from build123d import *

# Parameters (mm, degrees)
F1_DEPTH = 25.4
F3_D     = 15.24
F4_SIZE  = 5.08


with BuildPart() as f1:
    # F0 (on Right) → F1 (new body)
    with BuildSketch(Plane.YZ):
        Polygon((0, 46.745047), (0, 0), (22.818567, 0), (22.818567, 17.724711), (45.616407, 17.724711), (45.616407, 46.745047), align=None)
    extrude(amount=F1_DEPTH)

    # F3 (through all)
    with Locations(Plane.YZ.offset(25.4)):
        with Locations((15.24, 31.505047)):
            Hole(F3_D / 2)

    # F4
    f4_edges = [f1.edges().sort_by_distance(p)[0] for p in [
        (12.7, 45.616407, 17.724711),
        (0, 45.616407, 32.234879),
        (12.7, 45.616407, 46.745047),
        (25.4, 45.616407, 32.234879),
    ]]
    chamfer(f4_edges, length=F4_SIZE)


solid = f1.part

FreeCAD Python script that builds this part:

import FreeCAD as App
import Part
import Sketcher
Q = App.Units.Quantity


def edges_at(feature, points):
    """Names of the edges that pass closest to the given points."""
    edges = feature.Shape.Edges
    near = lambda p: min(range(len(edges)), key=lambda i: edges[i].distToShape(Part.Vertex(*p))[0])
    return sorted({f"Edge{near(p) + 1}" for p in points})


def add_polygon(sketch, points):
    """Adds a closed chain of lines whose ends are joined by coincident constraints."""
    first, n = sketch.GeometryCount, len(points)
    for a, b in zip(points, points[1:] + points[:1]):
        sketch.addGeometry(Part.LineSegment(App.Vector(*a, 0), App.Vector(*b, 0)), False)
    for i in range(n):
        sketch.addConstraint(Sketcher.Constraint("Coincident", first + i, 2, first + (i + 1) % n, 1))

doc = App.newDocument("Part")
params = doc.addObject("Spreadsheet::Sheet", "Params")
for row, (alias, value) in enumerate([
    ("pad1_length", "1 in"),
    ("sketch2_diameter", "0.6 in"),
    ("hole_diameter", "0.6 in"),
    ("chamfer_size", "0.2 in"),
], start=1):
    params.set(f"A{row}", alias)
    params.set(f"B{row}", "=" + value)
    params.setAlias(f"B{row}", alias)

body = doc.addObject("PartDesign::Body", "Body")

# Sketch on YZ plane
sketch1 = body.newObject("Sketcher::SketchObject", "Sketch")
sketch1.AttachmentSupport = (doc.getObject("YZ_Plane"), [""])
sketch1.MapMode = "FlatFace"
add_polygon(sketch1, [(0, 46.745047), (0, 0), (22.818567, 0), (22.818567, 17.724711), (45.616407, 17.724711), (45.616407, 46.745047)])  # lines 0-5
sketch1.addConstraint(Sketcher.Constraint("Vertical", 0))
sketch1.addConstraint(Sketcher.Constraint("Horizontal", 1))
sketch1.addConstraint(Sketcher.Constraint("Vertical", 2))
sketch1.addConstraint(Sketcher.Constraint("Horizontal", 3))
sketch1.addConstraint(Sketcher.Constraint("Vertical", 4))
sketch1.addConstraint(Sketcher.Constraint("Horizontal", 5))
sketch1.addConstraint(Sketcher.Constraint("Coincident", 0, 2, -1, 1))
sketch1.addConstraint(Sketcher.Constraint("DistanceX", 3, 1, 3, 2, 22.79784))
sketch1.addConstraint(Sketcher.Constraint("DistanceY", 2, 1, 2, 2, 17.724711))
sketch1.addConstraint(Sketcher.Constraint("DistanceX", 1, 1, 1, 2, 22.818567))
sketch1.addConstraint(Sketcher.Constraint("DistanceY", 0, 2, 0, 1, 46.745047))
pad1 = body.newObject("PartDesign::Pad", "Pad")
pad1.Profile = sketch1
pad1.setExpression("Length", "Params.pad1_length")

# Sketch on YZ plane
sketch2 = body.newObject("Sketcher::SketchObject", "Sketch001")
sketch2.AttachmentSupport = (doc.getObject("YZ_Plane"), [""])
sketch2.MapMode = "FlatFace"
sketch2.AttachmentOffset = App.Placement(App.Vector(0, 0, 1 * 25.4), App.Rotation())
sketch2.addGeometry(Part.Circle(App.Vector(15.24, 31.505047, 0), App.Vector(0, 0, 1), 7.62), False)
sketch2.addConstraint(Sketcher.Constraint("Diameter", 0, Q("0.6 in")))
sketch2.addConstraint(Sketcher.Constraint("DistanceX", -1, 1, 0, 3, Q("0.6 in")))
sketch2.addConstraint(Sketcher.Constraint("DistanceY", -1, 1, 0, 3, 31.505047))
sketch2.setExpression("Constraints[0]", "Params.sketch2_diameter")
doc.recompute()
hole = body.newObject("PartDesign::Hole", "Hole")
hole.Profile = sketch2
hole.ThreadType = "None"
hole.setExpression("Diameter", "Params.hole_diameter")
hole.DepthType = "ThroughAll"
doc.recompute()

chamfer = body.newObject("PartDesign::Chamfer", "Chamfer")
chamfer.Base = (hole, edges_at(hole, [
    (12.7, 45.616, 17.725),
    (0, 45.616, 32.235),
    (12.7, 45.616, 46.745),
    (25.4, 45.616, 32.235),
]))
chamfer.setExpression("Size", "Params.chamfer_size")

doc.recompute()
